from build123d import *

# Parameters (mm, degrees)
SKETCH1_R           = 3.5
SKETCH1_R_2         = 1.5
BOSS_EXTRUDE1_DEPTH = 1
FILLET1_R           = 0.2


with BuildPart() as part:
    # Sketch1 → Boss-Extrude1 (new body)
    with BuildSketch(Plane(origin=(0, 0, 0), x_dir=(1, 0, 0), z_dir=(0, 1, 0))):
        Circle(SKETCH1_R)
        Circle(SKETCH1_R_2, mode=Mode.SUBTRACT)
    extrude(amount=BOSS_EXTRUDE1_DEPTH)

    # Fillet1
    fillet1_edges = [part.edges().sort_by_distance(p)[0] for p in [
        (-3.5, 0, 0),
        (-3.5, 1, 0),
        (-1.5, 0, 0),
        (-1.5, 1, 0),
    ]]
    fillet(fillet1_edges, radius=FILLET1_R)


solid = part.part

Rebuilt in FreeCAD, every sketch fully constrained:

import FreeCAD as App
import Part
import Sketcher

V = App.Vector
Q = App.Units.Quantity


def edges_at(feature, points):
    """Names of the edges that pass closest to the given points."""
    edges = feature.Shape.Edges
    near = lambda p: min(range(len(edges)), key=lambda i: edges[i].distToShape(Part.Vertex(*p))[0])
    return sorted({f"Edge{near(p) + 1}" for p in points})

doc = App.newDocument("Part")
params = doc.addObject("Spreadsheet::Sheet", "Params")
for row, (alias, value) in enumerate([
    ("sketch1_diameter", "7 mm"),
    ("sketch1_diameter2", "3 mm"),
    ("pad1_length", "1 mm"),
    ("fillet_radius", "0.2 mm"),
], start=1):
    params.set(f"A{row}", alias)
    params.set(f"B{row}", "=" + value)
    params.setAlias(f"B{row}", alias)

body = doc.addObject("PartDesign::Body", "Body")

# Sketch on XZ plane
sketch1 = body.newObject("Sketcher::SketchObject", "Sketch")
sketch1.AttachmentSupport = (doc.getObject("XZ_Plane"), [""])
sketch1.MapMode = "FlatFace"
sketch1.addGeometry([
    Part.Circle(V(0, 0, 0), V(0, 0, 1), 3.5),
    Part.Circle(V(0, 0, 0), V(0, 0, 1), 1.5),
], False)
sketch1.addConstraint([
    Sketcher.Constraint("Coincident", 0, 3, -1, 1),
    Sketcher.Constraint("Coincident", 1, 3, -1, 1),
    Sketcher.Constraint("Diameter", 0, Q("7 mm")),
    Sketcher.Constraint("Diameter", 1, Q("3 mm")),
])
sketch1.setExpression("Constraints[2]", "Params.sketch1_diameter")
sketch1.setExpression("Constraints[3]", "Params.sketch1_diameter2")
pad1 = body.newObject("PartDesign::Pad", "Pad")
pad1.Profile = sketch1
pad1.setExpression("Length", "Params.pad1_length")
pad1.Reversed = True
doc.recompute()

fillet = body.newObject("PartDesign::Fillet", "Fillet")
fillet.Base = (pad1, edges_at(pad1, [
    (-3.5, 0, 0),
    (-3.5, 1, 0),
    (-1.5, 0, 0),
    (-1.5, 1, 0),
]))
fillet.setExpression("Radius", "Params.fillet_radius")

doc.recompute()
